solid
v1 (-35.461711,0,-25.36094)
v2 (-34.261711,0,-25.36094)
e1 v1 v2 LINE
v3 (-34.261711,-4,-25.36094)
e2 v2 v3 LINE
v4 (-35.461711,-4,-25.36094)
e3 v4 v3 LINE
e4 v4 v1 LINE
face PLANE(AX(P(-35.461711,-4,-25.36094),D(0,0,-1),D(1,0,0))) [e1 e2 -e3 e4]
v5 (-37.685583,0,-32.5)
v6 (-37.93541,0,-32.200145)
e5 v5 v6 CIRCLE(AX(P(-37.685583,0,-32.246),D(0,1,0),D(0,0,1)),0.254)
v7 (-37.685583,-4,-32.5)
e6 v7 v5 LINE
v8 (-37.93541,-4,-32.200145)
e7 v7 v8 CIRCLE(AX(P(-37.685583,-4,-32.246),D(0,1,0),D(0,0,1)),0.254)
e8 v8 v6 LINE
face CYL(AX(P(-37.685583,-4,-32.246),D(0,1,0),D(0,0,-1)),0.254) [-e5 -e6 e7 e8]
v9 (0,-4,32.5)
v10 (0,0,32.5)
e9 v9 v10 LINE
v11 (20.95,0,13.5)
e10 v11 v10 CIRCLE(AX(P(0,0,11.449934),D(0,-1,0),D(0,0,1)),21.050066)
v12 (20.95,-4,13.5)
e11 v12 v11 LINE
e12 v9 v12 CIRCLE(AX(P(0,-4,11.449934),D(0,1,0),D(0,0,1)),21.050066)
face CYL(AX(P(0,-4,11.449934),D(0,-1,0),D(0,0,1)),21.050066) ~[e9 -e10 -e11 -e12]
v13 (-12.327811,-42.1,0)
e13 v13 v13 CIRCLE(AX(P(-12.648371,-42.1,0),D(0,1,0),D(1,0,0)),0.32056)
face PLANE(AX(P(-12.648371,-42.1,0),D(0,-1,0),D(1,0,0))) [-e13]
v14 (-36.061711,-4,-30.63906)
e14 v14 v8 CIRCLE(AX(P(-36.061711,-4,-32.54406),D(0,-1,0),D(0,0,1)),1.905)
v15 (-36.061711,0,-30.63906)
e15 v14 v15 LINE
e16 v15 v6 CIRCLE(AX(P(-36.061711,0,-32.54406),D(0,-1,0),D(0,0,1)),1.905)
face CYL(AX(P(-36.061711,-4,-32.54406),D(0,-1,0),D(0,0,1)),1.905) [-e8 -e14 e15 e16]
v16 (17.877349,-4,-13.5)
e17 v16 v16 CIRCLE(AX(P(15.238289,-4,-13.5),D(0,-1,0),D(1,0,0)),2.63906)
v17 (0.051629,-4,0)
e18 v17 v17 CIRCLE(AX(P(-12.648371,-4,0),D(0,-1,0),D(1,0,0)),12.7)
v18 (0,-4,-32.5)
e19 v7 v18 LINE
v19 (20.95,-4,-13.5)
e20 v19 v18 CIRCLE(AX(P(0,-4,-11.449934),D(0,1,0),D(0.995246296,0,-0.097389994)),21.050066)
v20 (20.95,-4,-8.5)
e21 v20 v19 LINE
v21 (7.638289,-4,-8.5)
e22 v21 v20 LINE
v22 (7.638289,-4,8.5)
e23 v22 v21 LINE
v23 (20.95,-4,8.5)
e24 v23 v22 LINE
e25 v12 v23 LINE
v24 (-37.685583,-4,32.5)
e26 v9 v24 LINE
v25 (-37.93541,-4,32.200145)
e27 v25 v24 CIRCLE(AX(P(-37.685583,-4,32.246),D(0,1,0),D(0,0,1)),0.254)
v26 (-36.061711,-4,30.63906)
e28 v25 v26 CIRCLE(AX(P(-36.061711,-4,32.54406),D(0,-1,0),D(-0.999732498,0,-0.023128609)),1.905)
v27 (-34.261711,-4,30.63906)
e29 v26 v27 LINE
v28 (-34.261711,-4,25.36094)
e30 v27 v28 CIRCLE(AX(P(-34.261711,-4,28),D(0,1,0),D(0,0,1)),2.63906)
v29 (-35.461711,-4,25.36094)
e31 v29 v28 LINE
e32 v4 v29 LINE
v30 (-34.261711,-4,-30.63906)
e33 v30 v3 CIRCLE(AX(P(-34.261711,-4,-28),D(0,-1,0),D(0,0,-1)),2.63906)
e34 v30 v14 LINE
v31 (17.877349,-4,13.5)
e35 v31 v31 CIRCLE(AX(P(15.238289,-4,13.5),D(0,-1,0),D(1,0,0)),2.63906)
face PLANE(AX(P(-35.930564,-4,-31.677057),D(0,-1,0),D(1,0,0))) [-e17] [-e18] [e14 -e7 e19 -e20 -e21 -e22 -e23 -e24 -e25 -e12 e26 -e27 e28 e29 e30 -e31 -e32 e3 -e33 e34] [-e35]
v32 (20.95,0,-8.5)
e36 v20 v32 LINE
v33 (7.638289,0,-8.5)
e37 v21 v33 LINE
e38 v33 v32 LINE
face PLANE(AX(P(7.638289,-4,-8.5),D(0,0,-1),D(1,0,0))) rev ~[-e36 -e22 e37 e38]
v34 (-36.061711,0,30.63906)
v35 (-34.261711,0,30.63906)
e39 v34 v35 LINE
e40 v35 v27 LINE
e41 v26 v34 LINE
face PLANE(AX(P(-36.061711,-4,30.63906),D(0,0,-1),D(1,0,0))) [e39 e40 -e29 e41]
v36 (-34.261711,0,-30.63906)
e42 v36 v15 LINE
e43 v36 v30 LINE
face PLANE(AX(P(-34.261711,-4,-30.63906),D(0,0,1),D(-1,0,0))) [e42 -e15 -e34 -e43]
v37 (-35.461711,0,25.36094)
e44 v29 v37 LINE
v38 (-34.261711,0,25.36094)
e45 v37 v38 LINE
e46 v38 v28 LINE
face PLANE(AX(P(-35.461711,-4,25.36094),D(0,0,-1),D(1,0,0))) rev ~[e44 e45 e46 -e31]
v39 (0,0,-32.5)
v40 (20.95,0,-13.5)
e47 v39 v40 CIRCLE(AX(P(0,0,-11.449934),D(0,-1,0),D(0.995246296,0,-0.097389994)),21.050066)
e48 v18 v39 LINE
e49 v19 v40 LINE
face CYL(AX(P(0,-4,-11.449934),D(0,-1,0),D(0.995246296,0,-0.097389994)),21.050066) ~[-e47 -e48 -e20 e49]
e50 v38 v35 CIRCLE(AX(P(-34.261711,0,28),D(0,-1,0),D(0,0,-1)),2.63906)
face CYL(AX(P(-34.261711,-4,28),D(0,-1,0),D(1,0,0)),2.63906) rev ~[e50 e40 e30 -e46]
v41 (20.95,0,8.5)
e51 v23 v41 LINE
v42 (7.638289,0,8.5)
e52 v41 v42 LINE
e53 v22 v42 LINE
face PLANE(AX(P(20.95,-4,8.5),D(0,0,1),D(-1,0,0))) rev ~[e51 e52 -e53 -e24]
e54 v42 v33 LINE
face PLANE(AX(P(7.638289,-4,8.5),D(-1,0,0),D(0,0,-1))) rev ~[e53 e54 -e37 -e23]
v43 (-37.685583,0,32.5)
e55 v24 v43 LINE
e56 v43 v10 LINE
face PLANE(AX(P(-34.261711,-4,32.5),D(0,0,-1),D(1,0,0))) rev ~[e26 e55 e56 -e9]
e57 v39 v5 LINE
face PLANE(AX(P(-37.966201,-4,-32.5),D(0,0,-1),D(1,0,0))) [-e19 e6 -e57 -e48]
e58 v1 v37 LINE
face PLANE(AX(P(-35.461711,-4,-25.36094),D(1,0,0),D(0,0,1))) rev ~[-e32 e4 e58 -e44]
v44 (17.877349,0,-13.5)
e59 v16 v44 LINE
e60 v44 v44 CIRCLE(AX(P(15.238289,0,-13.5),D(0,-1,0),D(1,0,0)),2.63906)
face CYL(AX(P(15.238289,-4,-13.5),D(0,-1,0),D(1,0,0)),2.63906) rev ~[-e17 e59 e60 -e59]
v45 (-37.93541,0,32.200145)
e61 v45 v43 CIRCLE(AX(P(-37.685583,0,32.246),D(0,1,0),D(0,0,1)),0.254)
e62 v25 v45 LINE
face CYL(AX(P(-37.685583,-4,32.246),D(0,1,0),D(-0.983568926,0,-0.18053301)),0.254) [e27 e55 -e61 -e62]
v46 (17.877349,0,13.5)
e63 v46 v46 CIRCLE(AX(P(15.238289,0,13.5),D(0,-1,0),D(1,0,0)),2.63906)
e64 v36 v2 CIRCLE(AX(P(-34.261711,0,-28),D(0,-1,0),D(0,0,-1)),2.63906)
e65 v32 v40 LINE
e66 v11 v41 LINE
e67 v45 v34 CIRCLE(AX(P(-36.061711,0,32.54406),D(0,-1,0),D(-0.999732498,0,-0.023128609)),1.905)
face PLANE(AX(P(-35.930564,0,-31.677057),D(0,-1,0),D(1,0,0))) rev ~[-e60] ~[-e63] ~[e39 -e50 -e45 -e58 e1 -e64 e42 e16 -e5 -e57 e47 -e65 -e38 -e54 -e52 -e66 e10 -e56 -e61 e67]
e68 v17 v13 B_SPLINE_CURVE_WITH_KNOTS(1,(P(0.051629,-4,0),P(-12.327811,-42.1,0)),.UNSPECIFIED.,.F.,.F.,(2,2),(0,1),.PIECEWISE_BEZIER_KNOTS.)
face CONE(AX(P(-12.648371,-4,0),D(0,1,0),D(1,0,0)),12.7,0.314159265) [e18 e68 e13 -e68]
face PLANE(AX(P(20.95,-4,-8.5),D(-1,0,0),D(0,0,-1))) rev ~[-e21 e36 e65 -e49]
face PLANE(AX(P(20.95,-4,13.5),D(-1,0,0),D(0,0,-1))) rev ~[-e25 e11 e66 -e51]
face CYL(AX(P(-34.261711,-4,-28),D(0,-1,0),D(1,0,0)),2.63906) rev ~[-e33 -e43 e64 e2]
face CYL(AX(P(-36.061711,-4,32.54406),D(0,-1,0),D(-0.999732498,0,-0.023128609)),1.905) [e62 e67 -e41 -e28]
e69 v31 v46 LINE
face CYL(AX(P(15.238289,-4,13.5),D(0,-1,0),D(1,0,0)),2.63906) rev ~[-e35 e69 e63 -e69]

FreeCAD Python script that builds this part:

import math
import FreeCAD as App
import Part
import Sketcher

V = App.Vector


def edges_at(feature, points):
    """Names of the edges that pass closest to the given points."""
    edges = feature.Shape.Edges
    near = lambda p: min(range(len(edges)), key=lambda i: edges[i].distToShape(Part.Vertex(*p))[0])
    return sorted({f"Edge{near(p) + 1}" for p in points})

doc = App.newDocument("Part")
body = doc.addObject("PartDesign::Body", "Body")

# Sketch on XZ plane
sketch1 = body.newObject("Sketcher::SketchObject", "Sketch")
sketch1.AttachmentSupport = (doc.getObject("XZ_Plane"), [""])
sketch1.MapMode = "FlatFace"
sketch1.addGeometry([
    Part.LineSegment(V(-34, 37, 0), V(-34, -37, 0)),
    Part.LineSegment(V(-34, -37, 0), V(34, -37, 0)),
    Part.LineSegment(V(34, -37, 0), V(34, 37, 0)),
    Part.LineSegment(V(34, 37, 0), V(-34, 37, 0)),
], False)
sketch1.addConstraint([
    Sketcher.Constraint("Coincident", 0, 2, 1, 1),
    Sketcher.Constraint("Coincident", 1, 2, 2, 1),
    Sketcher.Constraint("Coincident", 2, 2, 3, 1),
    Sketcher.Constraint("Coincident", 3, 2, 0, 1),
    Sketcher.Constraint("Vertical", 0),
    Sketcher.Constraint("Horizontal", 1),
    Sketcher.Constraint("Vertical", 2),
    Sketcher.Constraint("Horizontal", 3),
    Sketcher.Constraint("Symmetric", 0, 2, 2, 2, -1, 1),
    Sketcher.Constraint("DistanceX", 1, 1, 1, 2, 68.523422),
    Sketcher.Constraint("DistanceY", 0, 2, 0, 1, 74.860841),
])
pad1 = body.newObject("PartDesign::Pad", "Pad")
pad1.Profile = sketch1
pad1.Length = 4

# Sketch on XZ plane
sketch2 = body.newObject("Sketcher::SketchObject", "Sketch001")
sketch2.AttachmentSupport = (doc.getObject("XZ_Plane"), [""])
sketch2.MapMode = "FlatFace"
sketch2.AttachmentOffset = App.Placement(V(0, 0, 4), App.Rotation())
sketch2.addGeometry([
    Part.Circle(V(-34.3, 28, 0), V(0, 0, 1), 2.6),  # 0
    Part.Circle(V(15.2, 13.5, 0), V(0, 0, 1), 2.6),  # 1
    Part.Circle(V(-34.3, -28, 0), V(0, 0, 1), 2.6),  # 2
    Part.Circle(V(15.2, -13.5, 0), V(0, 0, 1), 2.6),  # 3
    Part.LineSegment(V(20.9, 8.5, 0), V(7.6, 8.5, 0)),  # 4
    Part.LineSegment(V(7.6, 8.5, 0), V(7.6, -8.5, 0)),  # 5
    Part.LineSegment(V(7.6, -8.5, 0), V(20.9, -8.5, 0)),  # 6
    Part.LineSegment(V(20.9, -8.5, 0), V(20.9, -13.5, 0)),  # 7
    Part.ArcOfCircle(Part.Circle(V(0, -11.4, 0), V(0, 0, 1), 21.1), math.radians(-90), math.radians(-6)),  # 8
    Part.LineSegment(V(0, -32.5, 0), V(-34.3, -32.5, 0)),  # 9
    Part.LineSegment(V(-34.3, -32.5, 0), V(-34.3, -37.4, 0)),  # 10
    Part.LineSegment(V(-34.3, -37.4, 0), V(34.3, -37.4, 0)),  # 11
    Part.LineSegment(V(34.3, -37.4, 0), V(34.3, 37.4, 0)),  # 12
    Part.LineSegment(V(34.3, 37.4, 0), V(-34.3, 37.4, 0)),  # 13
    Part.LineSegment(V(-34.3, 37.4, 0), V(-34.3, 32.5, 0)),  # 14
    Part.LineSegment(V(-34.3, 32.5, 0), V(0, 32.5, 0)),  # 15
    Part.ArcOfCircle(Part.Circle(V(0, 11.4, 0), V(0, 0, 1), 21.1), math.radians(6), math.radians(90)),  # 16
    Part.LineSegment(V(20.9, 13.5, 0), V(20.9, 8.5, 0)),  # 17
], False)
sketch2.addConstraint([
    Sketcher.Constraint("Coincident", 4, 2, 5, 1),
    Sketcher.Constraint("Coincident", 5, 2, 6, 1),
    Sketcher.Constraint("Coincident", 6, 2, 7, 1),
    Sketcher.Constraint("Coincident", 7, 2, 8, 2),
    Sketcher.Constraint("Tangent", 8, 1, 9, 1),
    Sketcher.Constraint("Coincident", 9, 2, 10, 1),
    Sketcher.Constraint("Coincident", 10, 2, 11, 1),
    Sketcher.Constraint("Coincident", 11, 2, 12, 1),
    Sketcher.Constraint("Coincident", 12, 2, 13, 1),
    Sketcher.Constraint("Coincident", 13, 2, 14, 1),
    Sketcher.Constraint("Coincident", 14, 2, 15, 1),
    Sketcher.Constraint("Tangent", 15, 2, 16, 2),
    Sketcher.Constraint("Coincident", 16, 1, 17, 1),
    Sketcher.Constraint("Coincident", 17, 2, 4, 1),
    Sketcher.Constraint("Horizontal", 4),
    Sketcher.Constraint("Vertical", 5),
    Sketcher.Constraint("Horizontal", 6),
    Sketcher.Constraint("Vertical", 7),
    Sketcher.Constraint("Horizontal", 9),
    Sketcher.Constraint("Vertical", 10),
    Sketcher.Constraint("Horizontal", 11),
    Sketcher.Constraint("Vertical", 12),
    Sketcher.Constraint("Horizontal", 13),
    Sketcher.Constraint("Vertical", 14),
    Sketcher.Constraint("Horizontal", 15),
    Sketcher.Constraint("Vertical", 17),
    Sketcher.Constraint("Equal", 0, 1),
    Sketcher.Constraint("Equal", 1, 2),
    Sketcher.Constraint("Equal", 2, 3),
    Sketcher.Constraint("Equal", 8, 16),
    Sketcher.Constraint("Symmetric", 8, 3, 16, 3, -1, 1),
    Sketcher.Constraint("Symmetric", 10, 2, 12, 2, -1, 1),
    Sketcher.Constraint("Symmetric", 0, 3, 2, 3, -1),
    Sketcher.Constraint("Symmetric", 1, 3, 3, 3, -1),
    Sketcher.Constraint("Symmetric", 7, 2, 16, 1, -1),
    Sketcher.Constraint("Horizontal", 3, 3, 7, 2),
    Sketcher.Constraint("Vertical", 2, 3, 9, 2),
    Sketcher.Constraint("Vertical", 10, 2, 13, 2),
    Sketcher.Constraint("Equal", 7, 17),
    Sketcher.Constraint("DistanceY", 5, 2, 5, 1, 17.0),
    Sketcher.Constraint("DistanceY", 7, 2, 7, 1, 5.0),
    Sketcher.Constraint("DistanceY", -1, 1, 0, 3, 28.0),
    Sketcher.Constraint("DistanceY", 8, 1, 3, 3, 19.0),
    Sketcher.Constraint("DistanceX", 0, 3, 1, 3, 49.5),
    Sketcher.Constraint("DistanceX", 4, 2, 1, 3, 7.6),
    Sketcher.Constraint("Diameter", 0, 5.27812),
    Sketcher.Constraint("DistanceX", -1, 1, 6, 2, 20.95),
    Sketcher.Constraint("DistanceX", 4, 2, 4, 1, 13.311711),
    Sketcher.Constraint("DistanceY", 10, 2, 10, 1, 4.930421),
])
pocket1 = body.newObject("PartDesign::Pocket", "Pocket")
pocket1.Profile = sketch2
pocket1.Type = "ThroughAll"

# Sketch on XZ plane
sketch3 = body.newObject("Sketcher::SketchObject", "Sketch002")
sketch3.AttachmentSupport = (doc.getObject("XZ_Plane"), [""])
sketch3.MapMode = "FlatFace"
sketch3.AttachmentOffset = App.Placement(V(0, 0, 4), App.Rotation())
sketch3.addGeometry([
    Part.LineSegment(V(-34.3, -32.5, 0), V(-34.3, -30.6, 0)),  # 0
    Part.LineSegment(V(-34.3, -30.6, 0), V(-36.1, -30.6, 0)),  # 1
    Part.ArcOfCircle(Part.Circle(V(-36.1, -32.5, 0), V(0, 0, 1), 1.9), math.radians(90), math.radians(179)),  # 2
    Part.LineSegment(V(-38, -32.5, 0), V(-34.3, -32.5, 0)),  # 3
    Part.LineSegment(V(-35.5, 25.4, 0), V(-35.5, -25.4, 0)),  # 4
    Part.LineSegment(V(-35.5, -25.4, 0), V(-34.3, -25.4, 0)),  # 5
    Part.LineSegment(V(-34.3, -25.4, 0), V(-34.3, 25.4, 0)),  # 6
    Part.LineSegment(V(-34.3, 25.4, 0), V(-35.5, 25.4, 0)),  # 7
    Part.LineSegment(V(-36.1, 30.6, 0), V(-34.3, 30.6, 0)),  # 8
    Part.LineSegment(V(-34.3, 30.6, 0), V(-34.3, 32.5, 0)),  # 9
    Part.LineSegment(V(-34.3, 32.5, 0), V(-38, 32.5, 0)),  # 10
    Part.ArcOfCircle(Part.Circle(V(-36.1, 32.5, 0), V(0, 0, 1), 1.9), math.radians(-179), math.radians(-90)),  # 11
], False)
sketch3.addConstraint([
    Sketcher.Constraint("Coincident", 0, 2, 1, 1),
    Sketcher.Constraint("Tangent", 1, 2, 2, 1),
    Sketcher.Constraint("Coincident", 2, 2, 3, 1),
    Sketcher.Constraint("Coincident", 3, 2, 0, 1),
    Sketcher.Constraint("Coincident", 4, 2, 5, 1),
    Sketcher.Constraint("Coincident", 5, 2, 6, 1),
    Sketcher.Constraint("Coincident", 6, 2, 7, 1),
    Sketcher.Constraint("Coincident", 7, 2, 4, 1),
    Sketcher.Constraint("Coincident", 8, 2, 9, 1),
    Sketcher.Constraint("Coincident", 9, 2, 10, 1),
    Sketcher.Constraint("Coincident", 10, 2, 11, 1),
    Sketcher.Constraint("Tangent", 11, 2, 8, 1),
    Sketcher.Constraint("Vertical", 0),
    Sketcher.Constraint("Horizontal", 1),
    Sketcher.Constraint("Horizontal", 3),
    Sketcher.Constraint("Vertical", 4),
    Sketcher.Constraint("Horizontal", 5),
    Sketcher.Constraint("Vertical", 6),
    Sketcher.Constraint("Horizontal", 7),
    Sketcher.Constraint("Horizontal", 8),
    Sketcher.Constraint("Vertical", 9),
    Sketcher.Constraint("Horizontal", 10),
    Sketcher.Constraint("Equal", 2, 11),
    Sketcher.Constraint("Symmetric", 2, 3, 11, 3, -1),
    Sketcher.Constraint("Symmetric", 3, 2, 9, 2, -1),
    Sketcher.Constraint("Vertical", 3, 2, 5, 2),
    Sketcher.Constraint("DistanceX", 1, 2, 1, 1, 1.8),
    Sketcher.Constraint("DistanceX", 5, 1, 5, 2, 1.2),
    Sketcher.Constraint("Radius", 2, 1.905),
    Sketcher.Constraint("DistanceY", 0, 2, 6, 2, 56.0),
    Sketcher.Constraint("DistanceY", 5, 2, 8, 2, 56.0),
    Sketcher.Constraint("DistanceY", 2, 2, -1, 1, 32.5),
    Sketcher.Constraint("DistanceX", 3, 1, 3, 2, 3.70449),
    Sketcher.Constraint("DistanceX", 2, 2, -1, 1, 37.966201),
])
pad2 = body.newObject("PartDesign::Pad", "Pad001")
pad2.Profile = sketch3
pad2.Length = 4
pad2.Reversed = True
doc.recompute()

fillet = body.newObject("PartDesign::Fillet", "Fillet")
fillet.Base = (pad2, edges_at(pad2, [(-37.966, -2, -32.5), (-37.966, -2, 32.5)]))
fillet.Radius = 0.254

# Sketch on XZ plane
sketch4 = body.newObject("Sketcher::SketchObject", "Sketch003")
sketch4.AttachmentSupport = (doc.getObject("XZ_Plane"), [""])
sketch4.MapMode = "FlatFace"
sketch4.AttachmentOffset = App.Placement(V(0, 0, 4), App.Rotation())
sketch4.addGeometry(Part.Circle(V(-13, 0, 0), V(0, 0, 1), 13), False)
sketch4.addConstraint([
    Sketcher.Constraint("PointOnObject", 0, 3, -1),
    Sketcher.Constraint("Diameter", 0, 25.4),
    Sketcher.Constraint("DistanceX", 0, 3, -1, 1, 12.648371),
])
pad3 = body.newObject("PartDesign::Pad", "Pad002")
pad3.Profile = sketch4
pad3.Length = 38.1
pad3.TaperAngle = -18

doc.recompute()
